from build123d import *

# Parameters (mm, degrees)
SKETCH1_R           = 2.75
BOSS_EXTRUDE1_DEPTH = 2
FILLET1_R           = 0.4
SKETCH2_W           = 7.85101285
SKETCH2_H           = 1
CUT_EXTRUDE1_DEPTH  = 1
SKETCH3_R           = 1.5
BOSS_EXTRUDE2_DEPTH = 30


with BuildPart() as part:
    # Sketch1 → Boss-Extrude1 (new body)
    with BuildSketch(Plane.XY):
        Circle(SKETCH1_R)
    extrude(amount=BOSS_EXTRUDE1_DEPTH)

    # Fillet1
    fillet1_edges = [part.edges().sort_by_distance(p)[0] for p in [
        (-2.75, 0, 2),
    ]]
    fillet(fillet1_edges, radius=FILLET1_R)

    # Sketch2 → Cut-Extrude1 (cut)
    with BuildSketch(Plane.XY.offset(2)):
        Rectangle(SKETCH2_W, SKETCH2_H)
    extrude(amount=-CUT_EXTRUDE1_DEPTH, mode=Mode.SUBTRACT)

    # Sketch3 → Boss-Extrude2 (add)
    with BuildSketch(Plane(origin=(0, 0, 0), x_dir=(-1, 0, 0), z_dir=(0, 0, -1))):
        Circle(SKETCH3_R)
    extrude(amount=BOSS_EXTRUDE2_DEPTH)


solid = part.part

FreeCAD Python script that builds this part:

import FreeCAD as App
import Part
import Sketcher
Q = App.Units.Quantity


def edges_at(feature, points):
    """Names of the edges that pass closest to the given points."""
    edges = feature.Shape.Edges
    near = lambda p: min(range(len(edges)), key=lambda i: edges[i].distToShape(Part.Vertex(*p))[0])
    return sorted({f"Edge{near(p) + 1}" for p in points})


def add_polygon(sketch, points):
    """Adds a closed chain of lines whose ends are joined by coincident constraints."""
    first, n = sketch.GeometryCount, len(points)
    for a, b in zip(points, points[1:] + points[:1]):
        sketch.addGeometry(Part.LineSegment(App.Vector(*a, 0), App.Vector(*b, 0)), False)
    for i in range(n):
        sketch.addConstraint(Sketcher.Constraint("Coincident", first + i, 2, first + (i + 1) % n, 1))

doc = App.newDocument("Part")
body = doc.addObject("PartDesign::Body", "Body")

sketch1 = body.newObject("Sketcher::SketchObject", "Sketch")
sketch1.AttachmentSupport = (doc.getObject("XY_Plane"), [""])
sketch1.MapMode = "FlatFace"
sketch1.addGeometry(Part.Circle(App.Vector(0, 0, 0), App.Vector(0, 0, 1), 2.8), False)
sketch1.addConstraint([
    Sketcher.Constraint("Coincident", 0, 3, -1, 1),
    Sketcher.Constraint("Diameter", 0, Q("5.5 mm")),
])
pad1 = body.newObject("PartDesign::Pad", "Pad")
pad1.Profile = sketch1
pad1.Length = 2
doc.recompute()

fillet = body.newObject("PartDesign::Fillet", "Fillet")
fillet.Base = (pad1, edges_at(pad1, [(-2.75, 0, 2)]))
fillet.Radius = 0.4

sketch2 = body.newObject("Sketcher::SketchObject", "Sketch001")
sketch2.AttachmentSupport = (doc.getObject("XY_Plane"), [""])
sketch2.MapMode = "FlatFace"
sketch2.AttachmentOffset = App.Placement(App.Vector(0, 0, 2), App.Rotation())
add_polygon(sketch2, [(-3.9, 0.5), (-3.9, -0.5), (3.9, -0.5), (3.9, 0.5)])
sketch2.addConstraint([
    Sketcher.Constraint("Vertical", 0),
    Sketcher.Constraint("Horizontal", 1),
    Sketcher.Constraint("Vertical", 2),
    Sketcher.Constraint("Horizontal", 3),
    Sketcher.Constraint("Symmetric", 0, 2, 2, 2, -1, 1),
    Sketcher.Constraint("DistanceY", 0, 2, 0, 1, Q("1 mm")),
    Sketcher.Constraint("DistanceX", 1, 1, 1, 2, Q("7.851013 mm")),
])
pocket1 = body.newObject("PartDesign::Pocket", "Pocket")
pocket1.Profile = sketch2
pocket1.Length = 1

sketch3 = body.newObject("Sketcher::SketchObject", "Sketch002")
sketch3.AttachmentSupport = (doc.getObject("XY_Plane"), [""])
sketch3.MapMode = "FlatFace"
sketch3.addGeometry(Part.Circle(App.Vector(0, 0, 0), App.Vector(0, 0, 1), 1.5), False)
sketch3.addConstraint([
    Sketcher.Constraint("Coincident", 0, 3, -1, 1),
    Sketcher.Constraint("Diameter", 0, Q("3 mm")),
])
pad2 = body.newObject("PartDesign::Pad", "Pad001")
pad2.Profile = sketch3
pad2.Length = 30
pad2.Reversed = True

doc.recompute()
